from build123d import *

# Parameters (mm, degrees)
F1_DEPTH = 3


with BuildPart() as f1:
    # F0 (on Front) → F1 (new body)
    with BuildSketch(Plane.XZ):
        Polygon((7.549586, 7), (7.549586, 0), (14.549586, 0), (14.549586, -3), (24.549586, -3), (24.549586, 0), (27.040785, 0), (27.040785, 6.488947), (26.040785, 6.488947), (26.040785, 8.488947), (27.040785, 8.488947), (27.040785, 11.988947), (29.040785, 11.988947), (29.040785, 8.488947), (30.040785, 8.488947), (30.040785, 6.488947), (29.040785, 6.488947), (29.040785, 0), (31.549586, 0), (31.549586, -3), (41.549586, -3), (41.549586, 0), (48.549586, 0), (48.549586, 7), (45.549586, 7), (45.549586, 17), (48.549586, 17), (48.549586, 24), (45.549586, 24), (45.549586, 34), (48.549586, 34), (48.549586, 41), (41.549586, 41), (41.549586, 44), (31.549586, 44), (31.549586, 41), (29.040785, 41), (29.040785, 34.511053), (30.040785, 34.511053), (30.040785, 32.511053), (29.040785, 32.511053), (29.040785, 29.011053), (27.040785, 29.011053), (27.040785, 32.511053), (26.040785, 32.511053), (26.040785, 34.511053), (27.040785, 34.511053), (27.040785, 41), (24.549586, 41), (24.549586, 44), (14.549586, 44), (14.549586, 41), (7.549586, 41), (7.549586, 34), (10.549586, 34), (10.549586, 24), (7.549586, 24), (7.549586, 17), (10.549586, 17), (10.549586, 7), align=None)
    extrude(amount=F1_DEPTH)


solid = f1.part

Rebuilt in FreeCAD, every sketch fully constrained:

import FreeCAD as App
import Part
import Sketcher

V = App.Vector

doc = App.newDocument("Part")
body = doc.addObject("PartDesign::Body", "Body")

sketch1 = body.newObject("Sketcher::SketchObject", "Sketch")
sketch1.AttachmentSupport = (doc.getObject("XZ_Plane"), [""])
sketch1.MapMode = "FlatFace"
sketch1.addGeometry([
    Part.LineSegment(V(7.5, 7, 0), V(7.5, 0, 0)),
    Part.LineSegment(V(7.5, 0, 0), V(14.5, 0, 0)),
    Part.LineSegment(V(14.5, 0, 0), V(14.5, -3, 0)),
    Part.LineSegment(V(14.5, -3, 0), V(24.5, -3, 0)),
    Part.LineSegment(V(24.5, -3, 0), V(24.5, 0, 0)),
    Part.LineSegment(V(24.5, 0, 0), V(27, 0, 0)),
    Part.LineSegment(V(27, 0, 0), V(27, 6.5, 0)),
    Part.LineSegment(V(27, 6.5, 0), V(26, 6.5, 0)),
    Part.LineSegment(V(26, 6.5, 0), V(26, 8.5, 0)),
    Part.LineSegment(V(26, 8.5, 0), V(27, 8.5, 0)),
    Part.LineSegment(V(27, 8.5, 0), V(27, 12, 0)),
    Part.LineSegment(V(27, 12, 0), V(29, 12, 0)),
    Part.LineSegment(V(29, 12, 0), V(29, 8.5, 0)),
    Part.LineSegment(V(29, 8.5, 0), V(30, 8.5, 0)),
    Part.LineSegment(V(30, 8.5, 0), V(30, 6.5, 0)),
    Part.LineSegment(V(30, 6.5, 0), V(29, 6.5, 0)),
    Part.LineSegment(V(29, 6.5, 0), V(29, 0, 0)),
    Part.LineSegment(V(29, 0, 0), V(31.5, 0, 0)),
    Part.LineSegment(V(31.5, 0, 0), V(31.5, -3, 0)),
    Part.LineSegment(V(31.5, -3, 0), V(41.5, -3, 0)),
    Part.LineSegment(V(41.5, -3, 0), V(41.5, 0, 0)),
    Part.LineSegment(V(41.5, 0, 0), V(48.5, 0, 0)),
    Part.LineSegment(V(48.5, 0, 0), V(48.5, 7, 0)),
    Part.LineSegment(V(48.5, 7, 0), V(45.5, 7, 0)),
    Part.LineSegment(V(45.5, 7, 0), V(45.5, 17, 0)),
    Part.LineSegment(V(45.5, 17, 0), V(48.5, 17, 0)),
    Part.LineSegment(V(48.5, 17, 0), V(48.5, 24, 0)),
    Part.LineSegment(V(48.5, 24, 0), V(45.5, 24, 0)),
    Part.LineSegment(V(45.5, 24, 0), V(45.5, 34, 0)),
    Part.LineSegment(V(45.5, 34, 0), V(48.5, 34, 0)),
    Part.LineSegment(V(48.5, 34, 0), V(48.5, 41, 0)),
    Part.LineSegment(V(48.5, 41, 0), V(41.5, 41, 0)),
    Part.LineSegment(V(41.5, 41, 0), V(41.5, 44, 0)),
    Part.LineSegment(V(41.5, 44, 0), V(31.5, 44, 0)),
    Part.LineSegment(V(31.5, 44, 0), V(31.5, 41, 0)),
    Part.LineSegment(V(31.5, 41, 0), V(29, 41, 0)),
    Part.LineSegment(V(29, 41, 0), V(29, 34.5, 0)),
    Part.LineSegment(V(29, 34.5, 0), V(30, 34.5, 0)),
    Part.LineSegment(V(30, 34.5, 0), V(30, 32.5, 0)),
    Part.LineSegment(V(30, 32.5, 0), V(29, 32.5, 0)),
    Part.LineSegment(V(29, 32.5, 0), V(29, 29, 0)),
    Part.LineSegment(V(29, 29, 0), V(27, 29, 0)),
    Part.LineSegment(V(27, 29, 0), V(27, 32.5, 0)),
    Part.LineSegment(V(27, 32.5, 0), V(26, 32.5, 0)),
    Part.LineSegment(V(26, 32.5, 0), V(26, 34.5, 0)),
    Part.LineSegment(V(26, 34.5, 0), V(27, 34.5, 0)),
    Part.LineSegment(V(27, 34.5, 0), V(27, 41, 0)),
    Part.LineSegment(V(27, 41, 0), V(24.5, 41, 0)),
    Part.LineSegment(V(24.5, 41, 0), V(24.5, 44, 0)),
    Part.LineSegment(V(24.5, 44, 0), V(14.5, 44, 0)),
    Part.LineSegment(V(14.5, 44, 0), V(14.5, 41, 0)),
    Part.LineSegment(V(14.5, 41, 0), V(7.5, 41, 0)),
    Part.LineSegment(V(7.5, 41, 0), V(7.5, 34, 0)),
    Part.LineSegment(V(7.5, 34, 0), V(10.5, 34, 0)),
    Part.LineSegment(V(10.5, 34, 0), V(10.5, 24, 0)),
    Part.LineSegment(V(10.5, 24, 0), V(7.5, 24, 0)),
    Part.LineSegment(V(7.5, 24, 0), V(7.5, 17, 0)),
    Part.LineSegment(V(7.5, 17, 0), V(10.5, 17, 0)),
    Part.LineSegment(V(10.5, 17, 0), V(10.5, 7, 0)),
    Part.LineSegment(V(10.5, 7, 0), V(7.5, 7, 0)),
], False)
sketch1.addConstraint([
    Sketcher.Constraint("Coincident", 0, 2, 1, 1),
    Sketcher.Constraint("Coincident", 1, 2, 2, 1),
    Sketcher.Constraint("Coincident", 2, 2, 3, 1),
    Sketcher.Constraint("Coincident", 3, 2, 4, 1),
    Sketcher.Constraint("Coincident", 4, 2, 5, 1),
    Sketcher.Constraint("Coincident", 5, 2, 6, 1),
    Sketcher.Constraint("Coincident", 6, 2, 7, 1),
    Sketcher.Constraint("Coincident", 7, 2, 8, 1),
    Sketcher.Constraint("Coincident", 8, 2, 9, 1),
    Sketcher.Constraint("Coincident", 9, 2, 10, 1),
    Sketcher.Constraint("Coincident", 10, 2, 11, 1),
    Sketcher.Constraint("Coincident", 11, 2, 12, 1),
    Sketcher.Constraint("Coincident", 12, 2, 13, 1),
    Sketcher.Constraint("Coincident", 13, 2, 14, 1),
    Sketcher.Constraint("Coincident", 14, 2, 15, 1),
    Sketcher.Constraint("Coincident", 15, 2, 16, 1),
    Sketcher.Constraint("Coincident", 16, 2, 17, 1),
    Sketcher.Constraint("Coincident", 17, 2, 18, 1),
    Sketcher.Constraint("Coincident", 18, 2, 19, 1),
    Sketcher.Constraint("Coincident", 19, 2, 20, 1),
    Sketcher.Constraint("Coincident", 20, 2, 21, 1),
    Sketcher.Constraint("Coincident", 21, 2, 22, 1),
    Sketcher.Constraint("Coincident", 22, 2, 23, 1),
    Sketcher.Constraint("Coincident", 23, 2, 24, 1),
    Sketcher.Constraint("Coincident", 24, 2, 25, 1),
    Sketcher.Constraint("Coincident", 25, 2, 26, 1),
    Sketcher.Constraint("Coincident", 26, 2, 27, 1),
    Sketcher.Constraint("Coincident", 27, 2, 28, 1),
    Sketcher.Constraint("Coincident", 28, 2, 29, 1),
    Sketcher.Constraint("Coincident", 29, 2, 30, 1),
    Sketcher.Constraint("Coincident", 30, 2, 31, 1),
    Sketcher.Constraint("Coincident", 31, 2, 32, 1),
    Sketcher.Constraint("Coincident", 32, 2, 33, 1),
    Sketcher.Constraint("Coincident", 33, 2, 34, 1),
    Sketcher.Constraint("Coincident", 34, 2, 35, 1),
    Sketcher.Constraint("Coincident", 35, 2, 36, 1),
    Sketcher.Constraint("Coincident", 36, 2, 37, 1),
    Sketcher.Constraint("Coincident", 37, 2, 38, 1),
    Sketcher.Constraint("Coincident", 38, 2, 39, 1),
    Sketcher.Constraint("Coincident", 39, 2, 40, 1),
    Sketcher.Constraint("Coincident", 40, 2, 41, 1),
    Sketcher.Constraint("Coincident", 41, 2, 42, 1),
    Sketcher.Constraint("Coincident", 42, 2, 43, 1),
    Sketcher.Constraint("Coincident", 43, 2, 44, 1),
    Sketcher.Constraint("Coincident", 44, 2, 45, 1),
    Sketcher.Constraint("Coincident", 45, 2, 46, 1),
    Sketcher.Constraint("Coincident", 46, 2, 47, 1),
    Sketcher.Constraint("Coincident", 47, 2, 48, 1),
    Sketcher.Constraint("Coincident", 48, 2, 49, 1),
    Sketcher.Constraint("Coincident", 49, 2, 50, 1),
    Sketcher.Constraint("Coincident", 50, 2, 51, 1),
    Sketcher.Constraint("Coincident", 51, 2, 52, 1),
    Sketcher.Constraint("Coincident", 52, 2, 53, 1),
    Sketcher.Constraint("Coincident", 53, 2, 54, 1),
    Sketcher.Constraint("Coincident", 54, 2, 55, 1),
    Sketcher.Constraint("Coincident", 55, 2, 56, 1),
    Sketcher.Constraint("Coincident", 56, 2, 57, 1),
    Sketcher.Constraint("Coincident", 57, 2, 58, 1),
    Sketcher.Constraint("Coincident", 58, 2, 59, 1),
    Sketcher.Constraint("Coincident", 59, 2, 0, 1),
    Sketcher.Constraint("Vertical", 0),
    Sketcher.Constraint("Horizontal", 1),
    Sketcher.Constraint("Vertical", 2),
    Sketcher.Constraint("Horizontal", 3),
    Sketcher.Constraint("Vertical", 4),
    Sketcher.Constraint("Horizontal", 5),
    Sketcher.Constraint("Vertical", 6),
    Sketcher.Constraint("Horizontal", 7),
    Sketcher.Constraint("Vertical", 8),
    Sketcher.Constraint("Horizontal", 9),
    Sketcher.Constraint("Vertical", 10),
    Sketcher.Constraint("Horizontal", 11),
    Sketcher.Constraint("Vertical", 12),
    Sketcher.Constraint("Horizontal", 13),
    Sketcher.Constraint("Vertical", 14),
    Sketcher.Constraint("Horizontal", 15),
    Sketcher.Constraint("Vertical", 16),
    Sketcher.Constraint("Horizontal", 17),
    Sketcher.Constraint("Vertical", 18),
    Sketcher.Constraint("Horizontal", 19),
    Sketcher.Constraint("Vertical", 20),
    Sketcher.Constraint("Horizontal", 21),
    Sketcher.Constraint("Vertical", 22),
    Sketcher.Constraint("Horizontal", 23),
    Sketcher.Constraint("Vertical", 24),
    Sketcher.Constraint("Horizontal", 25),
    Sketcher.Constraint("Vertical", 26),
    Sketcher.Constraint("Horizontal", 27),
    Sketcher.Constraint("Vertical", 28),
    Sketcher.Constraint("Horizontal", 29),
    Sketcher.Constraint("Vertical", 30),
    Sketcher.Constraint("Horizontal", 31),
    Sketcher.Constraint("Vertical", 32),
    Sketcher.Constraint("Horizontal", 33),
    Sketcher.Constraint("Vertical", 34),
    Sketcher.Constraint("Horizontal", 35),
    Sketcher.Constraint("Vertical", 36),
    Sketcher.Constraint("Horizontal", 37),
    Sketcher.Constraint("Vertical", 38),
    Sketcher.Constraint("Horizontal", 39),
    Sketcher.Constraint("Vertical", 40),
    Sketcher.Constraint("Horizontal", 41),
    Sketcher.Constraint("Vertical", 42),
    Sketcher.Constraint("Horizontal", 43),
    Sketcher.Constraint("Vertical", 44),
    Sketcher.Constraint("Horizontal", 45),
    Sketcher.Constraint("Vertical", 46),
    Sketcher.Constraint("Horizontal", 47),
    Sketcher.Constraint("Vertical", 48),
    Sketcher.Constraint("Horizontal", 49),
    Sketcher.Constraint("Vertical", 50),
    Sketcher.Constraint("Horizontal", 51),
    Sketcher.Constraint("Vertical", 52),
    Sketcher.Constraint("Horizontal", 53),
    Sketcher.Constraint("Vertical", 54),
    Sketcher.Constraint("Horizontal", 55),
    Sketcher.Constraint("Vertical", 56),
    Sketcher.Constraint("Horizontal", 57),
    Sketcher.Constraint("Vertical", 58),
    Sketcher.Constraint("Horizontal", 59),
    Sketcher.Constraint("PointOnObject", 0, 2, -1),
    Sketcher.Constraint("PointOnObject", 4, 2, -1),
    Sketcher.Constraint("PointOnObject", 16, 2, -1),
    Sketcher.Constraint("PointOnObject", 20, 2, -1),
    Sketcher.Constraint("Horizontal", 9, 2, 12, 2),
    Sketcher.Constraint("Horizontal", 7, 2, 14, 2),
    Sketcher.Constraint("Horizontal", 3, 2, 18, 2),
    Sketcher.Constraint("Horizontal", 31, 2, 34, 2),
    Sketcher.Constraint("Horizontal", 39, 2, 42, 2),
    Sketcher.Constraint("Horizontal", 37, 2, 44, 2),
    Sketcher.Constraint("Horizontal", 35, 2, 46, 2),
    Sketcher.Constraint("Horizontal", 33, 2, 48, 2),
    Sketcher.Constraint("Horizontal", 47, 2, 50, 2),
    Sketcher.Constraint("Horizontal", 29, 2, 52, 2),
    Sketcher.Constraint("Horizontal", 27, 2, 54, 2),
    Sketcher.Constraint("Horizontal", 25, 2, 56, 2),
    Sketcher.Constraint("Horizontal", 23, 2, 58, 2),
    Sketcher.Constraint("Vertical", 6, 2, 9, 2),
    Sketcher.Constraint("Vertical", 12, 2, 15, 2),
    Sketcher.Constraint("Vertical", 22, 2, 25, 2),
    Sketcher.Constraint("Vertical", 24, 2, 27, 2),
    Sketcher.Constraint("Vertical", 26, 2, 29, 2),
    Sketcher.Constraint("Vertical", 20, 2, 31, 2),
    Sketcher.Constraint("Vertical", 18, 2, 33, 2),
    Sketcher.Constraint("Vertical", 16, 2, 35, 2),
    Sketcher.Constraint("Vertical", 14, 2, 37, 2),
    Sketcher.Constraint("Vertical", 36, 2, 39, 2),
    Sketcher.Constraint("Vertical", 10, 2, 41, 2),
    Sketcher.Constraint("Vertical", 8, 2, 43, 2),
    Sketcher.Constraint("Vertical", 42, 2, 45, 2),
    Sketcher.Constraint("Vertical", 4, 2, 47, 2),
    Sketcher.Constraint("Vertical", 2, 2, 49, 2),
    Sketcher.Constraint("Vertical", 0, 2, 51, 2),
    Sketcher.Constraint("Vertical", 52, 2, 55, 2),
    Sketcher.Constraint("Vertical", 54, 2, 57, 2),
    Sketcher.Constraint("Equal", 9, 13),
    Sketcher.Constraint("Equal", 3, 19),
    Sketcher.Constraint("Equal", 1, 21),
    Sketcher.Constraint("Equal", 29, 53),
    Sketcher.Constraint("Equal", 51, 0),
    Sketcher.Constraint("Equal", 59, 2),
    Sketcher.Constraint("Equal", 41, 8),
    Sketcher.Constraint("Equal", 49, 24),
    Sketcher.Constraint("Equal", 22, 26),
    Sketcher.Constraint("Equal", 24, 28),
    Sketcher.Constraint("Equal", 26, 30),
    Sketcher.Constraint("Equal", 20, 32),
    Sketcher.Constraint("Equal", 16, 36),
    Sketcher.Constraint("Equal", 14, 38),
    Sketcher.Constraint("Equal", 12, 40),
    Sketcher.Constraint("DistanceX", 1, 1, 1, 2, 7.0),
    Sketcher.Constraint("DistanceX", 3, 1, 3, 2, 10.0),
    Sketcher.Constraint("DistanceX", 7, 2, 7, 1, 1.0),
    Sketcher.Constraint("DistanceX", 11, 1, 11, 2, 2.0),
    Sketcher.Constraint("DistanceX", 23, 2, 23, 1, 3.0),
    Sketcher.Constraint("DistanceY", 10, 1, 10, 2, 3.5),
    Sketcher.Constraint("DistanceX", 4, 2, 17, 2, 7.0),
    Sketcher.Constraint("DistanceX", 5, 1, 5, 2, 2.491199),
    Sketcher.Constraint("DistanceY", 6, 1, 6, 2, 6.488947),
    Sketcher.Constraint("DistanceX", -1, 1, 0, 2, 7.549586),
])
pad1 = body.newObject("PartDesign::Pad", "Pad")
pad1.Profile = sketch1
pad1.Length = 3

doc.recompute()
